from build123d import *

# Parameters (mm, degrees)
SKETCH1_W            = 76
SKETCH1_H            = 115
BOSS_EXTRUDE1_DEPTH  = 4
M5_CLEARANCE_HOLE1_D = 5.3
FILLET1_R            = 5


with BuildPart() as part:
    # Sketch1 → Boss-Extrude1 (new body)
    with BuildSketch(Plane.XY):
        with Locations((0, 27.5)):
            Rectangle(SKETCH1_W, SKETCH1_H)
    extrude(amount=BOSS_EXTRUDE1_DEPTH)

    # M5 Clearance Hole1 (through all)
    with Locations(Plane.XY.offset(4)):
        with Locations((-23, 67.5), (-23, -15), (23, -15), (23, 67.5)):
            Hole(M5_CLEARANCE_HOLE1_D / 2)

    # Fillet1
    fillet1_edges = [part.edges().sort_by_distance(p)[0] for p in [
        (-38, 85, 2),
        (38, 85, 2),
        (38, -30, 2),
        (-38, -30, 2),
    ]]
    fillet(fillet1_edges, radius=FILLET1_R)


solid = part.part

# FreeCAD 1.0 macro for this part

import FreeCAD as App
import Part
import Sketcher
from FreeCAD import Vector
Q = App.Units.Quantity


def edges_at(feature, points):
    """Names of the edges that pass closest to the given points."""
    edges = feature.Shape.Edges
    near = lambda p: min(range(len(edges)), key=lambda i: edges[i].distToShape(Part.Vertex(*p))[0])
    return sorted({f"Edge{near(p) + 1}" for p in points})

doc = App.newDocument("Part")
params = doc.addObject("Spreadsheet::Sheet", "Params")
for row, (alias, value) in enumerate([
    ("sketch1_width", "76 mm"),
    ("sketch1_height", "115 mm"),
    ("pad1_length", "4 mm"),
    ("sketch2_diameter", "5.3 mm"),
    ("hole_diameter", "5.3 mm"),
    ("fillet_radius", "5 mm"),
], start=1):
    params.set(f"A{row}", alias)
    params.set(f"B{row}", "=" + value)
    params.setAlias(f"B{row}", alias)

body = doc.addObject("PartDesign::Body", "Body")

# Sketch on XY plane
sketch1 = body.newObject("Sketcher::SketchObject", "Sketch")
sketch1.AttachmentSupport = (doc.getObject("XY_Plane"), [""])
sketch1.MapMode = "FlatFace"
sketch1.addGeometry([
    Part.LineSegment(Vector(-38, 85, 0), Vector(-38, -30, 0)),
    Part.LineSegment(Vector(-38, -30, 0), Vector(38, -30, 0)),
    Part.LineSegment(Vector(38, -30, 0), Vector(38, 85, 0)),
    Part.LineSegment(Vector(38, 85, 0), Vector(-38, 85, 0)),
], False)
sketch1.addConstraint([
    Sketcher.Constraint("Coincident", 0, 2, 1, 1),
    Sketcher.Constraint("Coincident", 1, 2, 2, 1),
    Sketcher.Constraint("Coincident", 2, 2, 3, 1),
    Sketcher.Constraint("Coincident", 3, 2, 0, 1),
    Sketcher.Constraint("Vertical", 0),
    Sketcher.Constraint("Horizontal", 1),
    Sketcher.Constraint("Vertical", 2),
    Sketcher.Constraint("Horizontal", 3),
    Sketcher.Constraint("DistanceX", 1, 1, 1, 2, Q("76 mm")),
    Sketcher.Constraint("DistanceY", 0, 2, 0, 1, Q("115 mm")),
    Sketcher.Constraint("DistanceX", 0, 2, -1, 1, Q("38 mm")),
    Sketcher.Constraint("DistanceY", 0, 2, -1, 1, Q("30 mm")),
])
sketch1.setExpression("Constraints[8]", "Params.sketch1_width")
sketch1.setExpression("Constraints[9]", "Params.sketch1_height")
pad1 = body.newObject("PartDesign::Pad", "Pad")
pad1.Profile = sketch1
pad1.setExpression("Length", "Params.pad1_length")

# Sketch on XY plane
sketch2 = body.newObject("Sketcher::SketchObject", "Sketch001")
sketch2.AttachmentSupport = (doc.getObject("XY_Plane"), [""])
sketch2.MapMode = "FlatFace"
sketch2.AttachmentOffset = App.Placement(Vector(0, 0, 4), App.Rotation())
sketch2.addGeometry([
    Part.Circle(Vector(-23, 67.5, 0), Vector(0, 0, 1), 2.65),
    Part.Circle(Vector(-23, -15, 0), Vector(0, 0, 1), 2.65),
    Part.Circle(Vector(23, -15, 0), Vector(0, 0, 1), 2.65),
    Part.Circle(Vector(23, 67.5, 0), Vector(0, 0, 1), 2.65),
], False)
sketch2.addConstraint([
    Sketcher.Constraint("Equal", 0, 1),
    Sketcher.Constraint("Equal", 1, 2),
    Sketcher.Constraint("Equal", 2, 3),
    Sketcher.Constraint("Symmetric", 1, 3, 2, 3, -2),
    Sketcher.Constraint("Symmetric", 0, 3, 3, 3, -2),
    Sketcher.Constraint("Vertical", 0, 3, 1, 3),
    Sketcher.Constraint("Diameter", 0, Q("5.3 mm")),
    Sketcher.Constraint("DistanceX", 0, 3, -1, 1, Q("23 mm")),
    Sketcher.Constraint("DistanceY", 1, 3, -1, 1, Q("15 mm")),
    Sketcher.Constraint("DistanceY", -1, 1, 0, 3, Q("67.5 mm")),
])
sketch2.setExpression("Constraints[6]", "Params.sketch2_diameter")
doc.recompute()
hole = body.newObject("PartDesign::Hole", "Hole")
hole.Profile = sketch2
hole.ThreadType = "None"
hole.setExpression("Diameter", "Params.hole_diameter")
hole.DepthType = "ThroughAll"
doc.recompute()

fillet = body.newObject("PartDesign::Fillet", "Fillet")
fillet.Base = (hole, edges_at(hole, [
    (-38, 85, 2),
    (38, 85, 2),
    (38, -30, 2),
    (-38, -30, 2),
]))
fillet.setExpression("Radius", "Params.fillet_radius")

doc.recompute()
